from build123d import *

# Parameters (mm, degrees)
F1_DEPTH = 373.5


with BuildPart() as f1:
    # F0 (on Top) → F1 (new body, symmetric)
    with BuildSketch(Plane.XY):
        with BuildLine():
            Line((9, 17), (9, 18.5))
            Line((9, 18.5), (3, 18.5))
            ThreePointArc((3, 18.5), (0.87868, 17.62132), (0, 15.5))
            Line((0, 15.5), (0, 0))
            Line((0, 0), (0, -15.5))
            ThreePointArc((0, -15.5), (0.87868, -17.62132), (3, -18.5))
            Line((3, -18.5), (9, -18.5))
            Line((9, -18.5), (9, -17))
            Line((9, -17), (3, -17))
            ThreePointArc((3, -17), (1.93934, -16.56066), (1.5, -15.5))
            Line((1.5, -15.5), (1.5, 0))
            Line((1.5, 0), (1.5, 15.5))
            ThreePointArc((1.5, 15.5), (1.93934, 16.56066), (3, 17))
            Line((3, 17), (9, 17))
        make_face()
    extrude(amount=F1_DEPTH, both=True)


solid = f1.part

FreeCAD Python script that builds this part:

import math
import FreeCAD as App
import Part
import Sketcher
Q = App.Units.Quantity

doc = App.newDocument("Part")
body = doc.addObject("PartDesign::Body", "Body")

# Sketch on XY plane
sketch1 = body.newObject("Sketcher::SketchObject", "Sketch")
sketch1.AttachmentSupport = (doc.getObject("XY_Plane"), [""])
sketch1.MapMode = "FlatFace"
sketch1.addGeometry([
    Part.LineSegment(App.Vector(9, 17, 0), App.Vector(9, 18.5, 0)),  # 0
    Part.LineSegment(App.Vector(9, 18.5, 0), App.Vector(3, 18.5, 0)),  # 1
    Part.ArcOfCircle(Part.Circle(App.Vector(3, 15.5, 0), App.Vector(0, 0, 1), 3), math.radians(90), math.radians(180)),  # 2
    Part.LineSegment(App.Vector(0, 15.5, 0), App.Vector(0, -15.5, 0)),  # 3
    Part.ArcOfCircle(Part.Circle(App.Vector(3, -15.5, 0), App.Vector(0, 0, 1), 3), math.radians(-180), math.radians(-90)),  # 4
    Part.LineSegment(App.Vector(3, -18.5, 0), App.Vector(9, -18.5, 0)),  # 5
    Part.LineSegment(App.Vector(9, -18.5, 0), App.Vector(9, -17, 0)),  # 6
    Part.LineSegment(App.Vector(9, -17, 0), App.Vector(3, -17, 0)),  # 7
    Part.ArcOfCircle(Part.Circle(App.Vector(3, -15.5, 0), App.Vector(0, 0, 1), 1.5), math.radians(-180), math.radians(-90)),  # 8
    Part.LineSegment(App.Vector(1.5, -15.5, 0), App.Vector(1.5, 15.5, 0)),  # 9
    Part.ArcOfCircle(Part.Circle(App.Vector(3, 15.5, 0), App.Vector(0, 0, 1), 1.5), math.radians(90), math.radians(180)),  # 10
    Part.LineSegment(App.Vector(3, 17, 0), App.Vector(9, 17, 0)),  # 11
], False)
sketch1.addConstraint([
    Sketcher.Constraint("Coincident", 0, 2, 1, 1),
    Sketcher.Constraint("Tangent", 1, 2, 2, 1),
    Sketcher.Constraint("Tangent", 2, 2, 3, 1),
    Sketcher.Constraint("Tangent", 3, 2, 4, 1),
    Sketcher.Constraint("Tangent", 4, 2, 5, 1),
    Sketcher.Constraint("Coincident", 5, 2, 6, 1),
    Sketcher.Constraint("Coincident", 6, 2, 7, 1),
    Sketcher.Constraint("Tangent", 7, 2, 8, 2),
    Sketcher.Constraint("Tangent", 8, 1, 9, 1),
    Sketcher.Constraint("Tangent", 9, 2, 10, 2),
    Sketcher.Constraint("Tangent", 10, 1, 11, 1),
    Sketcher.Constraint("Coincident", 11, 2, 0, 1),
    Sketcher.Constraint("Vertical", 0),
    Sketcher.Constraint("Horizontal", 1),
    Sketcher.Constraint("Vertical", 3),
    Sketcher.Constraint("Horizontal", 5),
    Sketcher.Constraint("Vertical", 6),
    Sketcher.Constraint("Horizontal", 7),
    Sketcher.Constraint("Vertical", 9),
    Sketcher.Constraint("Horizontal", 11),
    Sketcher.Constraint("Coincident", 8, 3, 4, 3),
    Sketcher.Constraint("Coincident", 10, 3, 2, 3),
    Sketcher.Constraint("Equal", 2, 4),
    Sketcher.Constraint("Symmetric", 2, 2, 3, 2, -1, 1),
    Sketcher.Constraint("Vertical", 0, 2, 5, 2),
    Sketcher.Constraint("Radius", 2, Q("3.000001 mm")),
    Sketcher.Constraint("Radius", 8, Q("1.500001 mm")),
    Sketcher.Constraint("DistanceX", 1, 2, 1, 1, Q("6 mm")),
    Sketcher.Constraint("DistanceY", 3, 2, 3, 1, Q("31 mm")),
])
pad1 = body.newObject("PartDesign::Pad", "Pad")
pad1.Profile = sketch1
pad1.Length = 747
pad1.Midplane = True

doc.recompute()
